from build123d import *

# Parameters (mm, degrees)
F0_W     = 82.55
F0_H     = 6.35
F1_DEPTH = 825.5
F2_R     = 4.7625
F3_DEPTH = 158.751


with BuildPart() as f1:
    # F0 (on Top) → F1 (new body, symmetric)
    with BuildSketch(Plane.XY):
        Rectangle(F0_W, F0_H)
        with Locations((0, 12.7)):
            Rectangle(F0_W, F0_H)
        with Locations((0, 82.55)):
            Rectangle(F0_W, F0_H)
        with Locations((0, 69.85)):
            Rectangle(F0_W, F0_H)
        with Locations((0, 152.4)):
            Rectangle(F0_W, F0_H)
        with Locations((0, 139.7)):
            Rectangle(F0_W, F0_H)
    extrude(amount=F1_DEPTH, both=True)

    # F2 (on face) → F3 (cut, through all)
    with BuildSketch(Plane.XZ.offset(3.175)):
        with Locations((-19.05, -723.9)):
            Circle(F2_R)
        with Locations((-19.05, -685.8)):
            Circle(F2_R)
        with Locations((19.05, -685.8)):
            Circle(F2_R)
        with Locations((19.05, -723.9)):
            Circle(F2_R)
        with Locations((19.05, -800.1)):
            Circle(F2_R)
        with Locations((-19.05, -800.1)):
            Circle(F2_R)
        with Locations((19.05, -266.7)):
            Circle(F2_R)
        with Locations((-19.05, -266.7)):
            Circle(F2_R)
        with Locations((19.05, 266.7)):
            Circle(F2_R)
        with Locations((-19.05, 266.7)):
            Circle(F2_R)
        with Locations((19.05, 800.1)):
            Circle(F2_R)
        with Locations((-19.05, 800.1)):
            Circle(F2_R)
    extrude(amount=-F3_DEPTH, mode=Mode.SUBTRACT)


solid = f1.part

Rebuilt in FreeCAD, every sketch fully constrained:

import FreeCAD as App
import Part
import Sketcher
from FreeCAD import Vector
Q = App.Units.Quantity


def add_polygon(sketch, points):
    """Adds a closed chain of lines whose ends are joined by coincident constraints."""
    first, n = sketch.GeometryCount, len(points)
    for a, b in zip(points, points[1:] + points[:1]):
        sketch.addGeometry(Part.LineSegment(App.Vector(*a, 0), App.Vector(*b, 0)), False)
    for i in range(n):
        sketch.addConstraint(Sketcher.Constraint("Coincident", first + i, 2, first + (i + 1) % n, 1))

doc = App.newDocument("Part")
body = doc.addObject("PartDesign::Body", "Body")
body.AllowCompound = True

sketch1 = body.newObject("Sketcher::SketchObject", "Sketch")
sketch1.AttachmentSupport = (doc.getObject("XY_Plane"), [""])
sketch1.MapMode = "FlatFace"
add_polygon(sketch1, [(-41, 3), (-41, -3), (41, -3), (41, 3)])
add_polygon(sketch1, [(-41, 16), (-41, 10), (41, 10), (41, 16)])
add_polygon(sketch1, [(-41, 86), (-41, 79), (41, 79), (41, 86)])
add_polygon(sketch1, [(-41, 73), (-41, 67), (41, 67), (41, 73)])
add_polygon(sketch1, [(-41, 156), (-41, 149), (41, 149), (41, 156)])
add_polygon(sketch1, [(-41, 143), (-41, 137), (41, 137), (41, 143)])
sketch1.addConstraint([
    Sketcher.Constraint("Vertical", 0),
    Sketcher.Constraint("Horizontal", 1),
    Sketcher.Constraint("Vertical", 2),
    Sketcher.Constraint("Horizontal", 3),
    Sketcher.Constraint("Vertical", 4),
    Sketcher.Constraint("Horizontal", 5),
    Sketcher.Constraint("Vertical", 6),
    Sketcher.Constraint("Horizontal", 7),
    Sketcher.Constraint("Vertical", 8),
    Sketcher.Constraint("Horizontal", 9),
    Sketcher.Constraint("Vertical", 10),
    Sketcher.Constraint("Horizontal", 11),
    Sketcher.Constraint("Vertical", 12),
    Sketcher.Constraint("Horizontal", 13),
    Sketcher.Constraint("Vertical", 14),
    Sketcher.Constraint("Horizontal", 15),
    Sketcher.Constraint("Vertical", 16),
    Sketcher.Constraint("Horizontal", 17),
    Sketcher.Constraint("Vertical", 18),
    Sketcher.Constraint("Horizontal", 19),
    Sketcher.Constraint("Vertical", 20),
    Sketcher.Constraint("Horizontal", 21),
    Sketcher.Constraint("Vertical", 22),
    Sketcher.Constraint("Horizontal", 23),
    Sketcher.Constraint("Symmetric", 0, 2, 2, 2, -1, 1),
    Sketcher.Constraint("Vertical", 3, 2, 4, 2),
    Sketcher.Constraint("Vertical", 2, 2, 5, 2),
    Sketcher.Constraint("Vertical", 7, 2, 8, 2),
    Sketcher.Constraint("Vertical", 6, 2, 9, 2),
    Sketcher.Constraint("Vertical", 11, 2, 12, 2),
    Sketcher.Constraint("Vertical", 10, 2, 13, 2),
    Sketcher.Constraint("Vertical", 15, 2, 16, 2),
    Sketcher.Constraint("Vertical", 14, 2, 17, 2),
    Sketcher.Constraint("Vertical", 19, 2, 20, 2),
    Sketcher.Constraint("Vertical", 18, 2, 21, 2),
    Sketcher.Constraint("Equal", 2, 4),
    Sketcher.Constraint("Equal", 6, 8),
    Sketcher.Constraint("Equal", 10, 12),
    Sketcher.Constraint("Equal", 14, 16),
    Sketcher.Constraint("Equal", 18, 20),
    Sketcher.Constraint("DistanceY", 3, 2, 8, 2, Q("3 in")),
    Sketcher.Constraint("DistanceY", 5, 2, 10, 2, Q("3 in")),
    Sketcher.Constraint("DistanceY", 7, 2, 12, 2, Q("2 in")),
    Sketcher.Constraint("DistanceY", 15, 2, 16, 2, Q("3 in")),
    Sketcher.Constraint("DistanceY", 9, 2, 18, 2, Q("3 in")),
    Sketcher.Constraint("DistanceY", 11, 2, 20, 2, Q("2 in")),
    Sketcher.Constraint("DistanceX", 1, 1, 1, 2, Q("3.25 in")),
])
pad1 = body.newObject("PartDesign::Pad", "Pad")
pad1.Profile = sketch1
pad1.Length = Q("65 in")
pad1.Midplane = True

sketch2 = body.newObject("Sketcher::SketchObject", "Sketch001")
sketch2.AttachmentSupport = (doc.getObject("XZ_Plane"), [""])
sketch2.MapMode = "FlatFace"
sketch2.AttachmentOffset = App.Placement(Vector(0, 0, 0.125 * 25.4), App.Rotation())
sketch2.addGeometry([
    Part.Circle(Vector(-19.1, -723.9, 0), Vector(0, 0, 1), 4.8),
    Part.Circle(Vector(-19.1, -685.8, 0), Vector(0, 0, 1), 4.8),
    Part.Circle(Vector(19.1, -685.8, 0), Vector(0, 0, 1), 4.8),
    Part.Circle(Vector(19.1, -723.9, 0), Vector(0, 0, 1), 4.8),
    Part.Circle(Vector(19.1, -800.1, 0), Vector(0, 0, 1), 4.8),
    Part.Circle(Vector(-19.1, -800.1, 0), Vector(0, 0, 1), 4.8),
    Part.Circle(Vector(19.1, -266.7, 0), Vector(0, 0, 1), 4.8),
    Part.Circle(Vector(-19.1, -266.7, 0), Vector(0, 0, 1), 4.8),
    Part.Circle(Vector(19.1, 266.7, 0), Vector(0, 0, 1), 4.8),
    Part.Circle(Vector(-19.1, 266.7, 0), Vector(0, 0, 1), 4.8),
    Part.Circle(Vector(19.1, 800.1, 0), Vector(0, 0, 1), 4.8),
    Part.Circle(Vector(-19.1, 800.1, 0), Vector(0, 0, 1), 4.8),
], False)
sketch2.addConstraint([
    Sketcher.Constraint("Equal", 0, 1),
    Sketcher.Constraint("Equal", 1, 2),
    Sketcher.Constraint("Equal", 2, 3),
    Sketcher.Constraint("Equal", 3, 4),
    Sketcher.Constraint("Equal", 4, 5),
    Sketcher.Constraint("Equal", 5, 6),
    Sketcher.Constraint("Equal", 6, 7),
    Sketcher.Constraint("Equal", 7, 8),
    Sketcher.Constraint("Equal", 8, 9),
    Sketcher.Constraint("Equal", 9, 10),
    Sketcher.Constraint("Equal", 10, 11),
    Sketcher.Constraint("Symmetric", 7, 3, 8, 3, -1, 1),
    Sketcher.Constraint("Symmetric", 6, 3, 9, 3, -1, 1),
    Sketcher.Constraint("Symmetric", 5, 3, 10, 3, -1, 1),
    Sketcher.Constraint("Symmetric", 4, 3, 11, 3, -1, 1),
    Sketcher.Constraint("Symmetric", 1, 3, 2, 3, -2),
    Sketcher.Constraint("Symmetric", 0, 3, 3, 3, -2),
    Sketcher.Constraint("Symmetric", 4, 3, 5, 3, -2),
    Sketcher.Constraint("Symmetric", 6, 3, 7, 3, -2),
    Sketcher.Constraint("Vertical", 0, 3, 1, 3),
    Sketcher.Constraint("Vertical", 3, 3, 4, 3),
    Sketcher.Constraint("Vertical", 4, 3, 6, 3),
    Sketcher.Constraint("Diameter", 0, Q("0.375 in")),
    Sketcher.Constraint("DistanceY", 1, 3, -1, 1, Q("27 in")),
    Sketcher.Constraint("DistanceY", 4, 3, 3, 3, Q("3 in")),
    Sketcher.Constraint("DistanceY", 3, 3, 6, 3, Q("18 in")),
    Sketcher.Constraint("DistanceY", 6, 3, 8, 3, Q("21 in")),
    Sketcher.Constraint("DistanceX", 1, 3, 2, 3, Q("1.5 in")),
])
pocket1 = body.newObject("PartDesign::Pocket", "Pocket")
pocket1.Profile = sketch2
pocket1.Type = "ThroughAll"

doc.recompute()
